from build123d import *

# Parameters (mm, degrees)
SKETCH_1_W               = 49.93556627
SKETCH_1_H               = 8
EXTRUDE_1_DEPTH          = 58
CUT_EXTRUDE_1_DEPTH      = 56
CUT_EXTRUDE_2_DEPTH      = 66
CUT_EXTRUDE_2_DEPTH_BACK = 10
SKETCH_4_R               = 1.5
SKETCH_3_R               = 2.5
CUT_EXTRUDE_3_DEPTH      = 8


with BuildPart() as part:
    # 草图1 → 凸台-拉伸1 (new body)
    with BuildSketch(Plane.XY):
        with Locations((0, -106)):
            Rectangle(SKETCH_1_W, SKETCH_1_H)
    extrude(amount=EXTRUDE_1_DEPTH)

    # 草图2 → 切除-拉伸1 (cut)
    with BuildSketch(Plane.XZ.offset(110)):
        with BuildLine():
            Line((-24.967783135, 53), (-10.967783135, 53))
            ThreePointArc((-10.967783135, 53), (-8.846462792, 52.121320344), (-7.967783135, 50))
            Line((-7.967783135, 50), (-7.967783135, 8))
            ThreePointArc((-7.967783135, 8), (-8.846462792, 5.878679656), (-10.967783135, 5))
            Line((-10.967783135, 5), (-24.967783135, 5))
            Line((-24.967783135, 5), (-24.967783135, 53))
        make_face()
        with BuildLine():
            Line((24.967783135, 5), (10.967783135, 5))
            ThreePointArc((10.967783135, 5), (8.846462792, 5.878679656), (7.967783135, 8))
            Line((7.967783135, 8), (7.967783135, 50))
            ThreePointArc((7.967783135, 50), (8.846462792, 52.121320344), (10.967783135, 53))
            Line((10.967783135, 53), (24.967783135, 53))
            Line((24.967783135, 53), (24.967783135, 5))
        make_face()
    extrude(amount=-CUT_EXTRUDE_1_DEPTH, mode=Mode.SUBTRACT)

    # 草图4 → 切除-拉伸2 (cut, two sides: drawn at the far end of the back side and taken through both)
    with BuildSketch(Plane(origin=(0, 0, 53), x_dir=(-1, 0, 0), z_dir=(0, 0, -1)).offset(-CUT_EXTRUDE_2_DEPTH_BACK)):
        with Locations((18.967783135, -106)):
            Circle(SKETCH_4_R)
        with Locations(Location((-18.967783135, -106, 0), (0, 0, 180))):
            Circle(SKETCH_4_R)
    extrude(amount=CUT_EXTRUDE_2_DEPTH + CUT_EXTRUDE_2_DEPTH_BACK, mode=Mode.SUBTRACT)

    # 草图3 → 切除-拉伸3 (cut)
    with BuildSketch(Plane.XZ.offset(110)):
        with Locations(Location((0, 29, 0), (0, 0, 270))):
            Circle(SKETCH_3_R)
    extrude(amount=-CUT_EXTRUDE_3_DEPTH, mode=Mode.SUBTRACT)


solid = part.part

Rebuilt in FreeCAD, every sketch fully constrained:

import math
import FreeCAD as App
import Part
import Sketcher


def add_polygon(sketch, points):
    """Adds a closed chain of lines whose ends are joined by coincident constraints."""
    first, n = sketch.GeometryCount, len(points)
    for a, b in zip(points, points[1:] + points[:1]):
        sketch.addGeometry(Part.LineSegment(App.Vector(*a, 0), App.Vector(*b, 0)), False)
    for i in range(n):
        sketch.addConstraint(Sketcher.Constraint("Coincident", first + i, 2, first + (i + 1) % n, 1))

doc = App.newDocument("Part")
body = doc.addObject("PartDesign::Body", "Body")

sketch1 = doc.addObject("Sketcher::SketchObject", "Sketch")
body.addObject(sketch1)
sketch1.AttachmentSupport = (doc.XY_Plane, [""])
sketch1.MapMode = "FlatFace"
add_polygon(sketch1, [(-24.967783, -102), (-24.967783, -110), (24.967783, -110), (24.967783, -102)])
sketch1.addConstraint([
    Sketcher.Constraint("Vertical", 0),
    Sketcher.Constraint("Horizontal", 1),
    Sketcher.Constraint("Vertical", 2),
    Sketcher.Constraint("Horizontal", 3),
    Sketcher.Constraint("DistanceY", 0, 2, 0, 1, 8.0),
    Sketcher.Constraint("DistanceY", 0, 2, -1, 1, 110.0),
    Sketcher.Constraint("DistanceX", 1, 1, 1, 2, 49.935566),
    Sketcher.Constraint("DistanceX", 0, 2, -1, 1, 24.967783),
])
pad1 = doc.addObject("PartDesign::Pad", "Pad")
body.addObject(pad1)
pad1.Profile = sketch1
pad1.Length = 58

sketch2 = doc.addObject("Sketcher::SketchObject", "Sketch001")
body.addObject(sketch2)
sketch2.AttachmentSupport = (doc.XZ_Plane, [""])
sketch2.MapMode = "FlatFace"
sketch2.AttachmentOffset = App.Placement(App.Vector(0, 0, 110), App.Rotation())
sketch2.addGeometry([
    Part.LineSegment(App.Vector(-10.967783, 53, 0), App.Vector(-24.967783, 53, 0)),
    Part.LineSegment(App.Vector(-24.967783, 53, 0), App.Vector(-24.967783, 5, 0)),
    Part.LineSegment(App.Vector(-24.967783, 5, 0), App.Vector(-10.967783, 5, 0)),
    Part.ArcOfCircle(Part.Circle(App.Vector(-10.967783, 8, 0), App.Vector(0, 0, 1), 3), math.radians(-90), math.radians(0)),
    Part.LineSegment(App.Vector(-7.967783, 8, 0), App.Vector(-7.967783, 50, 0)),
    Part.ArcOfCircle(Part.Circle(App.Vector(-10.967783, 50, 0), App.Vector(0, 0, 1), 3), math.radians(0), math.radians(90)),
    Part.LineSegment(App.Vector(10.967783, 5, 0), App.Vector(24.967783, 5, 0)),
    Part.LineSegment(App.Vector(24.967783, 5, 0), App.Vector(24.967783, 53, 0)),
    Part.LineSegment(App.Vector(24.967783, 53, 0), App.Vector(10.967783, 53, 0)),
    Part.ArcOfCircle(Part.Circle(App.Vector(10.967783, 50, 0), App.Vector(0, 0, 1), 3), math.radians(90), math.radians(180)),
    Part.LineSegment(App.Vector(7.967783, 50, 0), App.Vector(7.967783, 8, 0)),
    Part.ArcOfCircle(Part.Circle(App.Vector(10.967783, 8, 0), App.Vector(0, 0, 1), 3), math.radians(180), math.radians(270)),
], False)
sketch2.addConstraint([
    Sketcher.Constraint("Coincident", 0, 2, 1, 1),
    Sketcher.Constraint("Coincident", 1, 2, 2, 1),
    Sketcher.Constraint("Tangent", 2, 2, 3, 1),
    Sketcher.Constraint("Tangent", 3, 2, 4, 1),
    Sketcher.Constraint("Tangent", 4, 2, 5, 1),
    Sketcher.Constraint("Tangent", 5, 2, 0, 1),
    Sketcher.Constraint("Coincident", 6, 2, 7, 1),
    Sketcher.Constraint("Coincident", 7, 2, 8, 1),
    Sketcher.Constraint("Tangent", 8, 2, 9, 1),
    Sketcher.Constraint("Tangent", 9, 2, 10, 1),
    Sketcher.Constraint("Tangent", 10, 2, 11, 1),
    Sketcher.Constraint("Tangent", 11, 2, 6, 1),
    Sketcher.Constraint("Horizontal", 0),
    Sketcher.Constraint("Vertical", 1),
    Sketcher.Constraint("Horizontal", 2),
    Sketcher.Constraint("Vertical", 4),
    Sketcher.Constraint("Horizontal", 6),
    Sketcher.Constraint("Vertical", 7),
    Sketcher.Constraint("Horizontal", 8),
    Sketcher.Constraint("Vertical", 10),
    Sketcher.Constraint("Equal", 3, 5),
    Sketcher.Constraint("Equal", 5, 9),
    Sketcher.Constraint("Equal", 9, 11),
    Sketcher.Constraint("Symmetric", 5, 3, 9, 3, -2),
    Sketcher.Constraint("Symmetric", 1, 2, 6, 2, -2),
    Sketcher.Constraint("Radius", 3, 3.0),
    Sketcher.Constraint("DistanceX", 0, 2, 0, 1, 14.0),
    Sketcher.Constraint("DistanceY", 1, 2, 1, 1, 48.0),
    Sketcher.Constraint("DistanceY", -1, 1, 3, 3, 8.0),
    Sketcher.Constraint("DistanceX", 3, 3, -1, 1, 10.967783),
])
pocket1 = doc.addObject("PartDesign::Pocket", "Pocket")
body.addObject(pocket1)
pocket1.Profile = sketch2
pocket1.Length = 56

sketch3 = doc.addObject("Sketcher::SketchObject", "Sketch002")
body.addObject(sketch3)
sketch3.AttachmentSupport = (doc.XY_Plane, [""])
sketch3.MapMode = "FlatFace"
sketch3.AttachmentOffset = App.Placement(App.Vector(0, 0, 53), App.Rotation())
sketch3.addGeometry([
    Part.Circle(App.Vector(-18.967783, -106, 0), App.Vector(0, 0, 1), 1.5),
    Part.Circle(App.Vector(18.967783, -106, 0), App.Vector(0, 0, 1), 1.5),
], False)
sketch3.addConstraint([
    Sketcher.Constraint("Equal", 0, 1),
    Sketcher.Constraint("Symmetric", 0, 3, 1, 3, -2),
    Sketcher.Constraint("Diameter", 0, 3.0),
    Sketcher.Constraint("DistanceY", 0, 3, -1, 1, 106.0),
    Sketcher.Constraint("DistanceX", 0, 3, -1, 1, 18.967783),
])
pocket2 = doc.addObject("PartDesign::Pocket", "Pocket001")
body.addObject(pocket2)
pocket2.Profile = sketch3
pocket2.Type = "ThroughAll"
pocket2.Midplane = True

sketch4 = doc.addObject("Sketcher::SketchObject", "Sketch003")
body.addObject(sketch4)
sketch4.AttachmentSupport = (doc.XZ_Plane, [""])
sketch4.MapMode = "FlatFace"
sketch4.AttachmentOffset = App.Placement(App.Vector(0, 0, 110), App.Rotation())
sketch4.addGeometry(Part.Circle(App.Vector(0, 29, 0), App.Vector(0, 0, 1), 2.5), False)
sketch4.addConstraint([
    Sketcher.Constraint("PointOnObject", 0, 3, -2),
    Sketcher.Constraint("Diameter", 0, 5.0),
    Sketcher.Constraint("DistanceY", -1, 1, 0, 3, 29.0),
])
pocket3 = doc.addObject("PartDesign::Pocket", "Pocket002")
body.addObject(pocket3)
pocket3.Profile = sketch4
pocket3.Length = 8

doc.recompute()
